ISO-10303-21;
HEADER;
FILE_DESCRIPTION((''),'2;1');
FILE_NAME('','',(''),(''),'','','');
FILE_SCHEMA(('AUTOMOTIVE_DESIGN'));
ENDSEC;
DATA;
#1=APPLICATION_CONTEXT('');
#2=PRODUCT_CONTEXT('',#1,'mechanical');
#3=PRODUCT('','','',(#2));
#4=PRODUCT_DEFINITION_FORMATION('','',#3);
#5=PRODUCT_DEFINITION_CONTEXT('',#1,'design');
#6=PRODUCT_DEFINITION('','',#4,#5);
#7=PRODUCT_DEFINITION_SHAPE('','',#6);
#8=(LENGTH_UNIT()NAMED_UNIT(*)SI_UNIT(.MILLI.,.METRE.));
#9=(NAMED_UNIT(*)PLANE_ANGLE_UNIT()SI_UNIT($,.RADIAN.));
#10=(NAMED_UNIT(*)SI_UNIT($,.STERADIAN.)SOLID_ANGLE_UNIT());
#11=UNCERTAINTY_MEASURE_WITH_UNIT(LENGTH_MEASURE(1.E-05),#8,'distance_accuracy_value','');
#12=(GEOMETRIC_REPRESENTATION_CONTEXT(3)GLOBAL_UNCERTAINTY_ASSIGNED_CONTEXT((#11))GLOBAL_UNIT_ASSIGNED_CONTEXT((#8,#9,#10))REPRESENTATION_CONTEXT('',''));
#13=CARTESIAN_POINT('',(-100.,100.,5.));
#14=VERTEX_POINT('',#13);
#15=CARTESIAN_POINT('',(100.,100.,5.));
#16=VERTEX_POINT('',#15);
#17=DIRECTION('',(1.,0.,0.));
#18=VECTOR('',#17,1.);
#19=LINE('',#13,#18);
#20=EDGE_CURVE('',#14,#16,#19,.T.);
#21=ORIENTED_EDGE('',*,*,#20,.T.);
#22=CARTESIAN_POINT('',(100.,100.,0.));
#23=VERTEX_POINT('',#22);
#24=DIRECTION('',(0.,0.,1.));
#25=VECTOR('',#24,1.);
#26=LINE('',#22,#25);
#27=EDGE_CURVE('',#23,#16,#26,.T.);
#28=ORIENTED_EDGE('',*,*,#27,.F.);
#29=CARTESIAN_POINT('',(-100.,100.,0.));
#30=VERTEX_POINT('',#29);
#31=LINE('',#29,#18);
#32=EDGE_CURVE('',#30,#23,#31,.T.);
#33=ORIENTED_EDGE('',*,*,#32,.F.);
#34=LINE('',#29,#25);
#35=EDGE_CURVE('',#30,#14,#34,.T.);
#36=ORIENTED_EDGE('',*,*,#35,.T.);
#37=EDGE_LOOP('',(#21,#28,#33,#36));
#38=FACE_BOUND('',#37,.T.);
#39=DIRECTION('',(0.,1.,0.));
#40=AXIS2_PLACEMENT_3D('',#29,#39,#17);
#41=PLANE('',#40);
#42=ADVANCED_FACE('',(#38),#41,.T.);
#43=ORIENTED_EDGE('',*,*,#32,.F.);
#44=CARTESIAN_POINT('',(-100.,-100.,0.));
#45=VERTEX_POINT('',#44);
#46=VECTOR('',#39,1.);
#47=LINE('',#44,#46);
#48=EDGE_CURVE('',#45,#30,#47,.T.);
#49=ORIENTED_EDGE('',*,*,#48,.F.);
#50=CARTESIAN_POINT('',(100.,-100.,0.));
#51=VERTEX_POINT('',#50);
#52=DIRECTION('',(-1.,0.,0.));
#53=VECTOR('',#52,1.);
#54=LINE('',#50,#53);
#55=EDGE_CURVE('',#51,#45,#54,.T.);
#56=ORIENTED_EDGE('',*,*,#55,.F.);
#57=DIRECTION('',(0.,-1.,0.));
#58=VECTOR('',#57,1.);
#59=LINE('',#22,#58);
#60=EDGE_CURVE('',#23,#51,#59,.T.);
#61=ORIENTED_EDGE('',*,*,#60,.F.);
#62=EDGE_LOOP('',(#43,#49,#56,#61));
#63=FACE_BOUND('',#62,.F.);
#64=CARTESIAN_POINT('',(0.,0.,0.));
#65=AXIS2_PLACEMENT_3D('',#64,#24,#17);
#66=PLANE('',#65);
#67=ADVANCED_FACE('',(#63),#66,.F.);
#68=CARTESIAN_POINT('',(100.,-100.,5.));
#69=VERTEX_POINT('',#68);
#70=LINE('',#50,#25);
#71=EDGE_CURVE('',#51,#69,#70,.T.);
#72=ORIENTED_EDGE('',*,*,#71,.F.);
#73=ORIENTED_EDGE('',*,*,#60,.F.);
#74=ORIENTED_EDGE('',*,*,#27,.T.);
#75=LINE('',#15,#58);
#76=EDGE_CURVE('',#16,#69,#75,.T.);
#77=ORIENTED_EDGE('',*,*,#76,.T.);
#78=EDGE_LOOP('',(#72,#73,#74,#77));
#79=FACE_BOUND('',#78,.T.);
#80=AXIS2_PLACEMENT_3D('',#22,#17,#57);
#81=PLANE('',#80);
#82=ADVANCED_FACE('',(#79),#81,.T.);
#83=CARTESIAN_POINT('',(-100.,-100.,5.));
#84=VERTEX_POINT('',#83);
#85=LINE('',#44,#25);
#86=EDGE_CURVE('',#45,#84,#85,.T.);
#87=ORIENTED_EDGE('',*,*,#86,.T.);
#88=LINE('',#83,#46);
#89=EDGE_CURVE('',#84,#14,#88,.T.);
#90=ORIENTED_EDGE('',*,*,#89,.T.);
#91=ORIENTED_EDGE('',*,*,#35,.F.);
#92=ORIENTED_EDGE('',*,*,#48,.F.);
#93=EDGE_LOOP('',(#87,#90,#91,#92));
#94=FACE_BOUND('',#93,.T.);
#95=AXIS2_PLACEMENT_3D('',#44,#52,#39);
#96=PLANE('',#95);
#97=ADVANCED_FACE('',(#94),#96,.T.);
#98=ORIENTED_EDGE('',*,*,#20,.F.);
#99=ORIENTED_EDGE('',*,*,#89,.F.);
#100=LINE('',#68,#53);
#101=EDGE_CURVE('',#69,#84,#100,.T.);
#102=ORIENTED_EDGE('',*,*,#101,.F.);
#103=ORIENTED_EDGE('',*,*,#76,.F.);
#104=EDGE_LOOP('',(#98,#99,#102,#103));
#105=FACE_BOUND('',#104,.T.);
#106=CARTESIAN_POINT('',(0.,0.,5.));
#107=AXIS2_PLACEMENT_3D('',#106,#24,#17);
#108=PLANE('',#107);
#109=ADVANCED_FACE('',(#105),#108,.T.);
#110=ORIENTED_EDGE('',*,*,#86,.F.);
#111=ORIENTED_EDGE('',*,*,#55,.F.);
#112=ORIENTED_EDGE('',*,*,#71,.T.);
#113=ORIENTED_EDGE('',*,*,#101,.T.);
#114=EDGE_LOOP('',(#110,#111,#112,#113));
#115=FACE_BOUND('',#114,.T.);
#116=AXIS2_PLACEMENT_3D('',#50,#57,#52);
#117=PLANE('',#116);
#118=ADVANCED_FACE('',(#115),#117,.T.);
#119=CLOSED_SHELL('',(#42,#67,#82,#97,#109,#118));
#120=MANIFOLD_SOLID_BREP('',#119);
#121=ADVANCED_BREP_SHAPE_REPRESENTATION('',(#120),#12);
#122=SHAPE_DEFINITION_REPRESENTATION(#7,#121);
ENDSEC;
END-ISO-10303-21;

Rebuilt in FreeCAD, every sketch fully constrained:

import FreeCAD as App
import Part
import Sketcher
from FreeCAD import Vector
Q = App.Units.Quantity


def add_polygon(sketch, points):
    """Adds a closed chain of lines whose ends are joined by coincident constraints."""
    first, n = sketch.GeometryCount, len(points)
    for a, b in zip(points, points[1:] + points[:1]):
        sketch.addGeometry(Part.LineSegment(App.Vector(*a, 0), App.Vector(*b, 0)), False)
    for i in range(n):
        sketch.addConstraint(Sketcher.Constraint("Coincident", first + i, 2, first + (i + 1) % n, 1))

doc = App.newDocument("Part")
body = doc.addObject("PartDesign::Body", "Body")

# Sketch on XY plane
sketch1 = body.newObject("Sketcher::SketchObject", "Sketch")
sketch1.AttachmentSupport = (doc.getObject("XY_Plane"), [""])
sketch1.MapMode = "FlatFace"
add_polygon(sketch1, [(100, 100), (-100, 100), (-100, -100), (100, -100)])  # lines 0-3
sketch1.addConstraint([
    Sketcher.Constraint("Horizontal", 0),
    Sketcher.Constraint("Vertical", 1),
    Sketcher.Constraint("Horizontal", 2),
    Sketcher.Constraint("Vertical", 3),
    Sketcher.Constraint("Symmetric", 0, 2, 2, 2, -1, 1),
    Sketcher.Constraint("Equal", 2, 1),
    Sketcher.Constraint("DistanceX", 0, 2, 0, 1, Q("200 mm")),
])
pad1 = body.newObject("PartDesign::Pad", "Pad")
pad1.Profile = sketch1
pad1.Length = 5

doc.recompute()
